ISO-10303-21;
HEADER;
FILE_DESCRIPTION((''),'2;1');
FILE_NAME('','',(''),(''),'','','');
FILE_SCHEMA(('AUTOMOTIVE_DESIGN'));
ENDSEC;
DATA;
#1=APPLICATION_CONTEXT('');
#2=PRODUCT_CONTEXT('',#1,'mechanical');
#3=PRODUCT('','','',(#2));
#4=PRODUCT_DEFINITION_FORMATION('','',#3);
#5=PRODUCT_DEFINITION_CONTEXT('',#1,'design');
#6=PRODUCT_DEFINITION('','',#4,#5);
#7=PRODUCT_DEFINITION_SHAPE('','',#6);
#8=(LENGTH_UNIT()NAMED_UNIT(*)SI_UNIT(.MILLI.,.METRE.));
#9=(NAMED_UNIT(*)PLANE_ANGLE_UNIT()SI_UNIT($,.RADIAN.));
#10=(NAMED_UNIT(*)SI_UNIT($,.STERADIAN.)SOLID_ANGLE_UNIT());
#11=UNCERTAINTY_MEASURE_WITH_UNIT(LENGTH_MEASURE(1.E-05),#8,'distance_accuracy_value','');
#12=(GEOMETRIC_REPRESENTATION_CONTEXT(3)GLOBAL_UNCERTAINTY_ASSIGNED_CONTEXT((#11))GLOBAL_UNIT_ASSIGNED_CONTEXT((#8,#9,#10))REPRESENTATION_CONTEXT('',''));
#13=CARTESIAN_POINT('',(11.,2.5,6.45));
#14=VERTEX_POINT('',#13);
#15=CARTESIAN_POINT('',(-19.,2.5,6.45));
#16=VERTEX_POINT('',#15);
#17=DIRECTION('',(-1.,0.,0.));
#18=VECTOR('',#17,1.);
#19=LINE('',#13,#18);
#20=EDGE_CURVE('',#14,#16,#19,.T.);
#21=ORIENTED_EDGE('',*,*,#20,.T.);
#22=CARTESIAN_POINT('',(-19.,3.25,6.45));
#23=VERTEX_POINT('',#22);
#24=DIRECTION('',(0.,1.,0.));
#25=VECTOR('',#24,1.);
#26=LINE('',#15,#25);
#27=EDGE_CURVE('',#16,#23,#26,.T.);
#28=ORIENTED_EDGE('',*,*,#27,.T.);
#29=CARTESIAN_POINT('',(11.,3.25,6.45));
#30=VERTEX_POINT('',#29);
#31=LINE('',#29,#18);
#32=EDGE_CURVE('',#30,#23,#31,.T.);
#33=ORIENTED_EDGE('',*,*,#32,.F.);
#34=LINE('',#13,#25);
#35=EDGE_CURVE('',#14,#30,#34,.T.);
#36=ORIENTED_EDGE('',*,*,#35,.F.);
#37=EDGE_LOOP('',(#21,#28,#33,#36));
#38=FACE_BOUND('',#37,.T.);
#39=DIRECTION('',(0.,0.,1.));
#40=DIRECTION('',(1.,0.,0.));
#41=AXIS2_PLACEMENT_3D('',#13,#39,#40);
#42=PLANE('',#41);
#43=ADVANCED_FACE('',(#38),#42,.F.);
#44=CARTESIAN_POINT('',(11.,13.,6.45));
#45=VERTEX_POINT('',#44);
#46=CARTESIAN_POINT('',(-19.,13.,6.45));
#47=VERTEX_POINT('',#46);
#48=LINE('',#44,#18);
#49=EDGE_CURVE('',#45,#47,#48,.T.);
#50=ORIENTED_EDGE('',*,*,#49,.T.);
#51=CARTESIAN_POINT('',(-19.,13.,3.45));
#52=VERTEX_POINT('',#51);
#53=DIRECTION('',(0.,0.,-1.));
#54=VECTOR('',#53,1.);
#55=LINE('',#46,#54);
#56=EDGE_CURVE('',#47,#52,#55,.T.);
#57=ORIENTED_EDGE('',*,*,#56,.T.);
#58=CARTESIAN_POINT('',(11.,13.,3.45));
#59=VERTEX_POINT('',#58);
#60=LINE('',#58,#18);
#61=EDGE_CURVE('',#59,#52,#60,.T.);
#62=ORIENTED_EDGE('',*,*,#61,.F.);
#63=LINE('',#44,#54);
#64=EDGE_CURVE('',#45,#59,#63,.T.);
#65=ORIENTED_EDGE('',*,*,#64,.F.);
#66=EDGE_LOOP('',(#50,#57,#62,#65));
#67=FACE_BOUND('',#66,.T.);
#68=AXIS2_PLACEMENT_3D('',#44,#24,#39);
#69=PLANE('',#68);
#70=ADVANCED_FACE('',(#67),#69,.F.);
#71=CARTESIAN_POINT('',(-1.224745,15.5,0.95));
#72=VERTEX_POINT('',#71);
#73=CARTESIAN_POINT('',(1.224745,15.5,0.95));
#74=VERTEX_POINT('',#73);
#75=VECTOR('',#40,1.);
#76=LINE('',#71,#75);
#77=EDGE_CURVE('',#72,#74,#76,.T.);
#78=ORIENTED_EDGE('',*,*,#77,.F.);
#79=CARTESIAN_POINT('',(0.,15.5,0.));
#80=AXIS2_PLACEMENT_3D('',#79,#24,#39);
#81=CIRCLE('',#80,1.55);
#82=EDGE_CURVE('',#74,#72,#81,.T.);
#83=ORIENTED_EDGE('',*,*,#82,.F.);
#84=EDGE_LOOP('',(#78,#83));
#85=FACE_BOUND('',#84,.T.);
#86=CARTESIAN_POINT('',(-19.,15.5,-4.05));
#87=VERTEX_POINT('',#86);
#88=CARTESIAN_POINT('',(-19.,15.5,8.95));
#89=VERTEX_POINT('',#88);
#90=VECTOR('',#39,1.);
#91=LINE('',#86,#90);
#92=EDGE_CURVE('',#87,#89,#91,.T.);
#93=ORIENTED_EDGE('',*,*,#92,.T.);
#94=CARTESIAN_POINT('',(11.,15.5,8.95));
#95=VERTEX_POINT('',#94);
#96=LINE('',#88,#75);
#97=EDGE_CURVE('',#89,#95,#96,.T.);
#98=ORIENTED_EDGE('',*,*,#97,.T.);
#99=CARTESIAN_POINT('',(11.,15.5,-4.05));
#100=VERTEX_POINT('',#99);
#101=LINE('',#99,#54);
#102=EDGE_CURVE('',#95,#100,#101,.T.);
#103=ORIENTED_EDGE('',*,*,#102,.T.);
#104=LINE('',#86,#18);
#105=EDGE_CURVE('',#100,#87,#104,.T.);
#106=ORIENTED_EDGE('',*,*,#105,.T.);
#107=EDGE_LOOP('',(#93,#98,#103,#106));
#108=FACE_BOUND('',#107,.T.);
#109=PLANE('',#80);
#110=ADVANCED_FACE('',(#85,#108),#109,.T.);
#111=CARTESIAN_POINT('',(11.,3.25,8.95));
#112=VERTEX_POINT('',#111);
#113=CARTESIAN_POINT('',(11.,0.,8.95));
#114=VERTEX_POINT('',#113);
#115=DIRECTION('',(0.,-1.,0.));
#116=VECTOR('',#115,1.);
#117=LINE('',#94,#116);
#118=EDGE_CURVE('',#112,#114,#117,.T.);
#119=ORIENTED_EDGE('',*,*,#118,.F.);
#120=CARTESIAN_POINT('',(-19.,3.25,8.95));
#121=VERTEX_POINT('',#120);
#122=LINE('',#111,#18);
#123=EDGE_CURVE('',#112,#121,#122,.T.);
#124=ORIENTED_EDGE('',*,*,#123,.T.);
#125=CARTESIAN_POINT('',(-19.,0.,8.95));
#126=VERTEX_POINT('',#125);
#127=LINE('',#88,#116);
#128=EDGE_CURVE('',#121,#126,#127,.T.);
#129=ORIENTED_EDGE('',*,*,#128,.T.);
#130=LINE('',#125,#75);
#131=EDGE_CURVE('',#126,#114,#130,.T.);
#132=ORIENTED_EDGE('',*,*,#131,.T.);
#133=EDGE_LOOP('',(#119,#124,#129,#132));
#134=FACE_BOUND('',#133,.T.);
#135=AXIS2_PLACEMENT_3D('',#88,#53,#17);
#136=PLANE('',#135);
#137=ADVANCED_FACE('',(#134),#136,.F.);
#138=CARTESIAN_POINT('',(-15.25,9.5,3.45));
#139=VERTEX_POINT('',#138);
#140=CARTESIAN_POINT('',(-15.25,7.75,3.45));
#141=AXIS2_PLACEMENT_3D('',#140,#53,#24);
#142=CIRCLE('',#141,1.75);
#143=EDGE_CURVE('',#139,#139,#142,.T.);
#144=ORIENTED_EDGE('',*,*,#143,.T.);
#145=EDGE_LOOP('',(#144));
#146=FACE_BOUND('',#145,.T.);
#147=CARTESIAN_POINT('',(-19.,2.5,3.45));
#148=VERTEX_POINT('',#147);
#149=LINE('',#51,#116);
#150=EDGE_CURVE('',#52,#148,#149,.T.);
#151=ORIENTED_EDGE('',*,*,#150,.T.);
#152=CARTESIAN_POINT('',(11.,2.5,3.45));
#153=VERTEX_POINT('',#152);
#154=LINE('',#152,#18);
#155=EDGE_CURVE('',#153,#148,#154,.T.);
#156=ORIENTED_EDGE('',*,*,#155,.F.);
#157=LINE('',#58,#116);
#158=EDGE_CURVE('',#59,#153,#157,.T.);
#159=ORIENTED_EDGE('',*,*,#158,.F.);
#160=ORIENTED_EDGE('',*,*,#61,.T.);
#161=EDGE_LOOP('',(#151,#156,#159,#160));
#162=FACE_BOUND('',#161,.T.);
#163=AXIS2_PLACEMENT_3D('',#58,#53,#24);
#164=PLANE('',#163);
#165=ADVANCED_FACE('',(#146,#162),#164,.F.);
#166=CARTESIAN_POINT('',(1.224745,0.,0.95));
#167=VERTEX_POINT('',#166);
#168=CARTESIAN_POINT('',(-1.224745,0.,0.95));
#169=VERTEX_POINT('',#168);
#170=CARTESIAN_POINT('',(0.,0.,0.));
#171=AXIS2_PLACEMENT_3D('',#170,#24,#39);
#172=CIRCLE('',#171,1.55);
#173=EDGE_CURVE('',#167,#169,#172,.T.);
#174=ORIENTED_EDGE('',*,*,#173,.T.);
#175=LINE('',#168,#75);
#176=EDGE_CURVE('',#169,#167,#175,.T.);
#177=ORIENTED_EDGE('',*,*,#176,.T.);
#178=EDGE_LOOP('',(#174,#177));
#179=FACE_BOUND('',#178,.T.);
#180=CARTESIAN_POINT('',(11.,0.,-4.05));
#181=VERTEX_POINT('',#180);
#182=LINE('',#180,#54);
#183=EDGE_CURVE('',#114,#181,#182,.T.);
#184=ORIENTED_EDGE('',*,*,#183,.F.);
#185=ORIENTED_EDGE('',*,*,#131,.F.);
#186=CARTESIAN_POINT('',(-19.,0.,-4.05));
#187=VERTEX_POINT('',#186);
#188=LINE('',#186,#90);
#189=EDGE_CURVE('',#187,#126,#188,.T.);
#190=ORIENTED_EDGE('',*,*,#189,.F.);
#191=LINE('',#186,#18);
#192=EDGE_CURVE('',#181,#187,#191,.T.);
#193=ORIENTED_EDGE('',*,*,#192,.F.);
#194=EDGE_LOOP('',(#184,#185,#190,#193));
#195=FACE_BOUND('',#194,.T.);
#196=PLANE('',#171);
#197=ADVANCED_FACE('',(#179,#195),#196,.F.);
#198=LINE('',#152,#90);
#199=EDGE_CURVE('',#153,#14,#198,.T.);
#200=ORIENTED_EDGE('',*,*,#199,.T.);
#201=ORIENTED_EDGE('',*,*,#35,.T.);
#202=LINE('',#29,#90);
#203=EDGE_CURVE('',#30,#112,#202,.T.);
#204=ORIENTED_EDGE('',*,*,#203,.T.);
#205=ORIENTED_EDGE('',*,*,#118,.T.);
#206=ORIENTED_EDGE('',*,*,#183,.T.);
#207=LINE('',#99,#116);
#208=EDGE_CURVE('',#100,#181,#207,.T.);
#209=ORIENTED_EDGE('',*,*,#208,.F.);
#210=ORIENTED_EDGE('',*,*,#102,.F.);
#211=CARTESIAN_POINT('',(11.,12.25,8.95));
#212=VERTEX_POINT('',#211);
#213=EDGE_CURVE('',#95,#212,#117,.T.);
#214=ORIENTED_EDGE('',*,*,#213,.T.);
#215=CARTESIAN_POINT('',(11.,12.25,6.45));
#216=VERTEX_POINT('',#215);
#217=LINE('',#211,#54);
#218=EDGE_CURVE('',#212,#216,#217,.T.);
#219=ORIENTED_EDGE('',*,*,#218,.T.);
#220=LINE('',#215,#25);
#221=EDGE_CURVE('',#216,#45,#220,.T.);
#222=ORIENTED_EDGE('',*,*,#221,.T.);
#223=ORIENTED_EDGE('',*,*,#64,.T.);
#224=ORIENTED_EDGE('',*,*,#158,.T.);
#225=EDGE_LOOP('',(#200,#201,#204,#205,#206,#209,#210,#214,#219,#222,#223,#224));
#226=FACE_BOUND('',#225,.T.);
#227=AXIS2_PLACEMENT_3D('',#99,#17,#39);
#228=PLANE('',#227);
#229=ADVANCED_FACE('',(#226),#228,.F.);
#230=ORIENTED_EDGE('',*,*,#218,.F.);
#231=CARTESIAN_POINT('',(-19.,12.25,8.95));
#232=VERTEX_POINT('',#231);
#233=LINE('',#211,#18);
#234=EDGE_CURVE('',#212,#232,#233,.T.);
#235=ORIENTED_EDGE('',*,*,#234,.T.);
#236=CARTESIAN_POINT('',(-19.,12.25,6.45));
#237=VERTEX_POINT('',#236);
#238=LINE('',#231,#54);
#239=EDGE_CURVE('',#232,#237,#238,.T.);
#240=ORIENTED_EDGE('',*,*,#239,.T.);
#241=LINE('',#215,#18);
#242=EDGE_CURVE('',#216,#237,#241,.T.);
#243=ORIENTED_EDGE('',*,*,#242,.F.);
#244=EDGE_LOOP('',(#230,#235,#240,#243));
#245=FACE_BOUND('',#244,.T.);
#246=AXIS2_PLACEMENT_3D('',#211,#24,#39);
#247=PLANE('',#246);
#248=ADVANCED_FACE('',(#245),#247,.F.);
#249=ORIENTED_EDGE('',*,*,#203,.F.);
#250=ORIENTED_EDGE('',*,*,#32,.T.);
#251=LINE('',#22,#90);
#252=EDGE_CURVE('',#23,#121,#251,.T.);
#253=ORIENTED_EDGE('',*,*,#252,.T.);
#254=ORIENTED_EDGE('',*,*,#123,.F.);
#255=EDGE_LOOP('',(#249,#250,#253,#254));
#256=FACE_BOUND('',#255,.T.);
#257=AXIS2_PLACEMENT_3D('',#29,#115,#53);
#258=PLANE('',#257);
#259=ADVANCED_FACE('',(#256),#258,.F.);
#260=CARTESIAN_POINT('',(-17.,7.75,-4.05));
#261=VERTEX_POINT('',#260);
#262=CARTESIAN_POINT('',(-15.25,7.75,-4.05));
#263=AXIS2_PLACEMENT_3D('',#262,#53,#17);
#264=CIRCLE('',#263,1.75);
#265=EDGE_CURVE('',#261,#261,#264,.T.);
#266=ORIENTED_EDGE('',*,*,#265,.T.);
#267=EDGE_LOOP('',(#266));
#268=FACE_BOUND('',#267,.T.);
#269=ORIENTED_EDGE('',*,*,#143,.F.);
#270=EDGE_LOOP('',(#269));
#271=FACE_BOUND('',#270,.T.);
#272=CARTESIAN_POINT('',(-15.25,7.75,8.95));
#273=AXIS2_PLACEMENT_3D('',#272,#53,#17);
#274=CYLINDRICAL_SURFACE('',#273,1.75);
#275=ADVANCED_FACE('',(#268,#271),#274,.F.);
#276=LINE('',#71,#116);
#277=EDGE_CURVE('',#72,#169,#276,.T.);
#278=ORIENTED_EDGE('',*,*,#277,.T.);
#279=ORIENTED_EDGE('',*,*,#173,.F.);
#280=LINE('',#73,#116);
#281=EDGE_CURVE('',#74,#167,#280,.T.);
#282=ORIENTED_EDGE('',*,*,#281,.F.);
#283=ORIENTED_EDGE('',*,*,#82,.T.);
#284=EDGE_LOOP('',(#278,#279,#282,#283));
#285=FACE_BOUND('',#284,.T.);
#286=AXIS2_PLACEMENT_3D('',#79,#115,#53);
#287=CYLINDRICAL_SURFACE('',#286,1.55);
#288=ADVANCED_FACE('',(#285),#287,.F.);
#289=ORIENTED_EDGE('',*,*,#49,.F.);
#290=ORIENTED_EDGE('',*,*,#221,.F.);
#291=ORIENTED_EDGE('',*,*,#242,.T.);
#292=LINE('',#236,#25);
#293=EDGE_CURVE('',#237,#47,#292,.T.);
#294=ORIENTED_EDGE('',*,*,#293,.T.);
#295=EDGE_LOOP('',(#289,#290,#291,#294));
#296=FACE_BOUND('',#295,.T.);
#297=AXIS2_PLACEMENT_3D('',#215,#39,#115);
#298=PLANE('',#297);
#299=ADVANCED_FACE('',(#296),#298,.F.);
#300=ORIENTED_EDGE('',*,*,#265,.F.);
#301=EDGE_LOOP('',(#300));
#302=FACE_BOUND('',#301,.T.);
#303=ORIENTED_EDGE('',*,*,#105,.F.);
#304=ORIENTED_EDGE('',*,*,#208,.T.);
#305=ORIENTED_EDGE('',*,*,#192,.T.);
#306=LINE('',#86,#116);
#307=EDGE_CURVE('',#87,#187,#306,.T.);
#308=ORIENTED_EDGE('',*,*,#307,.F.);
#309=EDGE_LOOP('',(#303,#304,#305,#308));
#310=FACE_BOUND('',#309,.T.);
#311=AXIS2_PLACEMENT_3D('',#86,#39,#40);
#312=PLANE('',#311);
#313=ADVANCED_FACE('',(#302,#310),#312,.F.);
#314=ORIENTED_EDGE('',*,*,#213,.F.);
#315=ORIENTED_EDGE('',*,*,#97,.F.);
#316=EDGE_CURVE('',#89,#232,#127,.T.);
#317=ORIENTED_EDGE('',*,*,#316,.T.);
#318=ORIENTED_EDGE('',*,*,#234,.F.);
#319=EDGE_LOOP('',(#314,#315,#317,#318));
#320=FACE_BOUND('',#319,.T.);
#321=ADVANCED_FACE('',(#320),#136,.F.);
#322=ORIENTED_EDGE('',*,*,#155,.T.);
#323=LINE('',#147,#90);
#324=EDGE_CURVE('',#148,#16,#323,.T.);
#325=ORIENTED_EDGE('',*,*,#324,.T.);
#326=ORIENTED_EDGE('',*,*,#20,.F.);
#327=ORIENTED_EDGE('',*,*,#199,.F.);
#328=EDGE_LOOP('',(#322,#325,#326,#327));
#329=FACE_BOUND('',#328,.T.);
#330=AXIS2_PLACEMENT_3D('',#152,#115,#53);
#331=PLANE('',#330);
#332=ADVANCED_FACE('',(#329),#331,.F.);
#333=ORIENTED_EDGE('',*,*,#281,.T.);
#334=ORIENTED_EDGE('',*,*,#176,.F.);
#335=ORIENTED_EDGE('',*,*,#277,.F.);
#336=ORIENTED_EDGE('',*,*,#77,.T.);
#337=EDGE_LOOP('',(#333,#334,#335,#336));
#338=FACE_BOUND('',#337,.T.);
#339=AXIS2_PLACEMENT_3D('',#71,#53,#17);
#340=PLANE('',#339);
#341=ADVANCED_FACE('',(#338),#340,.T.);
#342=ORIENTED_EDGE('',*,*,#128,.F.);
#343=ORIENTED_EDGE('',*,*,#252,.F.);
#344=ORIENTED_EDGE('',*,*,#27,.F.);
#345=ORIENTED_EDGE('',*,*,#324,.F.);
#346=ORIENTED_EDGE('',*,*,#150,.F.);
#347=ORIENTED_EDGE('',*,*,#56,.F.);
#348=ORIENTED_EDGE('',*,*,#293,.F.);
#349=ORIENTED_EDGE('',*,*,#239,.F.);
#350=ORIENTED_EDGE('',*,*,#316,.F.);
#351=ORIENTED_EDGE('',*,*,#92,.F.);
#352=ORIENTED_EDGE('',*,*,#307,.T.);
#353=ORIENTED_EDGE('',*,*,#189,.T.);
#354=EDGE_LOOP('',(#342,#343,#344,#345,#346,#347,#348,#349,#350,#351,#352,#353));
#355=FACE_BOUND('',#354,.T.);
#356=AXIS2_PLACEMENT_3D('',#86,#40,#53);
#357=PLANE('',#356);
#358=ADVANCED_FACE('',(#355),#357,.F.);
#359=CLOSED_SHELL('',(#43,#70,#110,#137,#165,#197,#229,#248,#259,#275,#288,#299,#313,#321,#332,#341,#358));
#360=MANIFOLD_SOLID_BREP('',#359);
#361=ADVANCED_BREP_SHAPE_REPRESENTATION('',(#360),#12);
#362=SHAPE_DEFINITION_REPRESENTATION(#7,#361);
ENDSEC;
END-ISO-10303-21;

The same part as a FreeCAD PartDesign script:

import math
import FreeCAD as App
import Part
import Sketcher

doc = App.newDocument("Part")
body = doc.addObject("PartDesign::Body", "Body")

# Sketch on XZ plane
sketch1 = body.newObject("Sketcher::SketchObject", "Sketch")
sketch1.AttachmentSupport = (doc.getObject("XZ_Plane"), [""])
sketch1.MapMode = "FlatFace"
sketch1.addGeometry([
    Part.LineSegment(App.Vector(-19, -4, 0), App.Vector(-19, 8.9, 0)),  # 0
    Part.LineSegment(App.Vector(-19, 8.9, 0), App.Vector(11, 8.9, 0)),  # 1
    Part.LineSegment(App.Vector(11, 8.9, 0), App.Vector(11, -4, 0)),  # 2
    Part.LineSegment(App.Vector(11, -4, 0), App.Vector(-19, -4, 0)),  # 3
    Part.LineSegment(App.Vector(1.2, 0.9, 0), App.Vector(-1.2, 0.9, 0)),  # 4
    Part.ArcOfCircle(Part.Circle(App.Vector(0, 0, 0), App.Vector(0, 0, 1), 1.6), math.radians(142), math.radians(398)),  # 5
], False)
sketch1.addConstraint([
    Sketcher.Constraint("Coincident", 0, 2, 1, 1),
    Sketcher.Constraint("Coincident", 1, 2, 2, 1),
    Sketcher.Constraint("Coincident", 2, 2, 3, 1),
    Sketcher.Constraint("Coincident", 3, 2, 0, 1),
    Sketcher.Constraint("Coincident", 4, 1, 5, 2),
    Sketcher.Constraint("Coincident", 5, 1, 4, 2),
    Sketcher.Constraint("Vertical", 0),
    Sketcher.Constraint("Horizontal", 1),
    Sketcher.Constraint("Vertical", 2),
    Sketcher.Constraint("Horizontal", 3),
    Sketcher.Constraint("Horizontal", 4),
    Sketcher.Constraint("Coincident", 5, 3, -1, 1),
    Sketcher.Constraint("DistanceX", 1, 1, 1, 2, 30.0),
    Sketcher.Constraint("DistanceY", 0, 1, 0, 2, 13.0),
    Sketcher.Constraint("Radius", 5, 1.55),
    Sketcher.Constraint("DistanceX", 0, 2, -1, 1, 19.0),
    Sketcher.Constraint("DistanceY", 2, 2, 4, 1, 5.0),
    Sketcher.Constraint("DistanceY", -1, 1, 0, 2, 8.95),
])
pad1 = body.newObject("PartDesign::Pad", "Pad")
pad1.Profile = sketch1
pad1.Length = 15.5
pad1.Reversed = True

# Sketch on YZ plane
sketch2 = body.newObject("Sketcher::SketchObject", "Sketch001")
sketch2.AttachmentSupport = (doc.getObject("YZ_Plane"), [""])
sketch2.MapMode = "FlatFace"
sketch2.AttachmentOffset = App.Placement(App.Vector(0, 0, -19), App.Rotation())
sketch2.addGeometry([
    Part.LineSegment(App.Vector(12.2, 8.9, 0), App.Vector(12.2, 6.5, 0)),  # 0
    Part.LineSegment(App.Vector(12.2, 6.5, 0), App.Vector(13, 6.5, 0)),  # 1
    Part.LineSegment(App.Vector(13, 6.5, 0), App.Vector(13, 3.5, 0)),  # 2
    Part.LineSegment(App.Vector(13, 3.5, 0), App.Vector(2.5, 3.5, 0)),  # 3
    Part.LineSegment(App.Vector(2.5, 3.5, 0), App.Vector(2.5, 6.5, 0)),  # 4
    Part.LineSegment(App.Vector(2.5, 6.5, 0), App.Vector(3.2, 6.5, 0)),  # 5
    Part.LineSegment(App.Vector(3.2, 6.5, 0), App.Vector(3.2, 8.9, 0)),  # 6
    Part.LineSegment(App.Vector(3.2, 8.9, 0), App.Vector(12.2, 8.9, 0)),  # 7
], False)
sketch2.addConstraint([
    Sketcher.Constraint("Coincident", 0, 2, 1, 1),
    Sketcher.Constraint("Coincident", 1, 2, 2, 1),
    Sketcher.Constraint("Coincident", 2, 2, 3, 1),
    Sketcher.Constraint("Coincident", 3, 2, 4, 1),
    Sketcher.Constraint("Coincident", 4, 2, 5, 1),
    Sketcher.Constraint("Coincident", 5, 2, 6, 1),
    Sketcher.Constraint("Coincident", 6, 2, 7, 1),
    Sketcher.Constraint("Coincident", 7, 2, 0, 1),
    Sketcher.Constraint("Vertical", 0),
    Sketcher.Constraint("Horizontal", 1),
    Sketcher.Constraint("Vertical", 2),
    Sketcher.Constraint("Horizontal", 3),
    Sketcher.Constraint("Vertical", 4),
    Sketcher.Constraint("Horizontal", 5),
    Sketcher.Constraint("Vertical", 6),
    Sketcher.Constraint("Horizontal", 7),
    Sketcher.Constraint("Horizontal", 1, 2, 4, 2),
    Sketcher.Constraint("Equal", 1, 5),
    Sketcher.Constraint("DistanceX", 7, 1, 7, 2, 9.0),
    Sketcher.Constraint("DistanceY", 2, 2, 2, 1, 3.0),
    Sketcher.Constraint("DistanceX", 3, 2, 3, 1, 10.5),
    Sketcher.Constraint("DistanceY", 0, 2, 0, 1, 2.5),
    Sketcher.Constraint("DistanceX", -1, 1, 1, 2, 13.0),
    Sketcher.Constraint("DistanceY", -1, 1, 0, 2, 6.45),
])
pocket1 = body.newObject("PartDesign::Pocket", "Pocket")
pocket1.Profile = sketch2
pocket1.Type = "ThroughAll"
pocket1.Reversed = True

# Sketch on XY plane
sketch3 = body.newObject("Sketcher::SketchObject", "Sketch002")
sketch3.AttachmentSupport = (doc.getObject("XY_Plane"), [""])
sketch3.MapMode = "FlatFace"
sketch3.AttachmentOffset = App.Placement(App.Vector(0, 0, -4.05), App.Rotation())
sketch3.addGeometry(Part.Circle(App.Vector(-15.2, 7.8, 0), App.Vector(0, 0, 1), 1.8), False)
sketch3.addConstraint([
    Sketcher.Constraint("Diameter", 0, 3.5),
    Sketcher.Constraint("DistanceX", 0, 3, -1, 1, 15.25),
    Sketcher.Constraint("DistanceY", -1, 1, 0, 3, 7.75),
])
pocket2 = body.newObject("PartDesign::Pocket", "Pocket001")
pocket2.Profile = sketch3
pocket2.Type = "ThroughAll"
pocket2.Reversed = True

doc.recompute()
